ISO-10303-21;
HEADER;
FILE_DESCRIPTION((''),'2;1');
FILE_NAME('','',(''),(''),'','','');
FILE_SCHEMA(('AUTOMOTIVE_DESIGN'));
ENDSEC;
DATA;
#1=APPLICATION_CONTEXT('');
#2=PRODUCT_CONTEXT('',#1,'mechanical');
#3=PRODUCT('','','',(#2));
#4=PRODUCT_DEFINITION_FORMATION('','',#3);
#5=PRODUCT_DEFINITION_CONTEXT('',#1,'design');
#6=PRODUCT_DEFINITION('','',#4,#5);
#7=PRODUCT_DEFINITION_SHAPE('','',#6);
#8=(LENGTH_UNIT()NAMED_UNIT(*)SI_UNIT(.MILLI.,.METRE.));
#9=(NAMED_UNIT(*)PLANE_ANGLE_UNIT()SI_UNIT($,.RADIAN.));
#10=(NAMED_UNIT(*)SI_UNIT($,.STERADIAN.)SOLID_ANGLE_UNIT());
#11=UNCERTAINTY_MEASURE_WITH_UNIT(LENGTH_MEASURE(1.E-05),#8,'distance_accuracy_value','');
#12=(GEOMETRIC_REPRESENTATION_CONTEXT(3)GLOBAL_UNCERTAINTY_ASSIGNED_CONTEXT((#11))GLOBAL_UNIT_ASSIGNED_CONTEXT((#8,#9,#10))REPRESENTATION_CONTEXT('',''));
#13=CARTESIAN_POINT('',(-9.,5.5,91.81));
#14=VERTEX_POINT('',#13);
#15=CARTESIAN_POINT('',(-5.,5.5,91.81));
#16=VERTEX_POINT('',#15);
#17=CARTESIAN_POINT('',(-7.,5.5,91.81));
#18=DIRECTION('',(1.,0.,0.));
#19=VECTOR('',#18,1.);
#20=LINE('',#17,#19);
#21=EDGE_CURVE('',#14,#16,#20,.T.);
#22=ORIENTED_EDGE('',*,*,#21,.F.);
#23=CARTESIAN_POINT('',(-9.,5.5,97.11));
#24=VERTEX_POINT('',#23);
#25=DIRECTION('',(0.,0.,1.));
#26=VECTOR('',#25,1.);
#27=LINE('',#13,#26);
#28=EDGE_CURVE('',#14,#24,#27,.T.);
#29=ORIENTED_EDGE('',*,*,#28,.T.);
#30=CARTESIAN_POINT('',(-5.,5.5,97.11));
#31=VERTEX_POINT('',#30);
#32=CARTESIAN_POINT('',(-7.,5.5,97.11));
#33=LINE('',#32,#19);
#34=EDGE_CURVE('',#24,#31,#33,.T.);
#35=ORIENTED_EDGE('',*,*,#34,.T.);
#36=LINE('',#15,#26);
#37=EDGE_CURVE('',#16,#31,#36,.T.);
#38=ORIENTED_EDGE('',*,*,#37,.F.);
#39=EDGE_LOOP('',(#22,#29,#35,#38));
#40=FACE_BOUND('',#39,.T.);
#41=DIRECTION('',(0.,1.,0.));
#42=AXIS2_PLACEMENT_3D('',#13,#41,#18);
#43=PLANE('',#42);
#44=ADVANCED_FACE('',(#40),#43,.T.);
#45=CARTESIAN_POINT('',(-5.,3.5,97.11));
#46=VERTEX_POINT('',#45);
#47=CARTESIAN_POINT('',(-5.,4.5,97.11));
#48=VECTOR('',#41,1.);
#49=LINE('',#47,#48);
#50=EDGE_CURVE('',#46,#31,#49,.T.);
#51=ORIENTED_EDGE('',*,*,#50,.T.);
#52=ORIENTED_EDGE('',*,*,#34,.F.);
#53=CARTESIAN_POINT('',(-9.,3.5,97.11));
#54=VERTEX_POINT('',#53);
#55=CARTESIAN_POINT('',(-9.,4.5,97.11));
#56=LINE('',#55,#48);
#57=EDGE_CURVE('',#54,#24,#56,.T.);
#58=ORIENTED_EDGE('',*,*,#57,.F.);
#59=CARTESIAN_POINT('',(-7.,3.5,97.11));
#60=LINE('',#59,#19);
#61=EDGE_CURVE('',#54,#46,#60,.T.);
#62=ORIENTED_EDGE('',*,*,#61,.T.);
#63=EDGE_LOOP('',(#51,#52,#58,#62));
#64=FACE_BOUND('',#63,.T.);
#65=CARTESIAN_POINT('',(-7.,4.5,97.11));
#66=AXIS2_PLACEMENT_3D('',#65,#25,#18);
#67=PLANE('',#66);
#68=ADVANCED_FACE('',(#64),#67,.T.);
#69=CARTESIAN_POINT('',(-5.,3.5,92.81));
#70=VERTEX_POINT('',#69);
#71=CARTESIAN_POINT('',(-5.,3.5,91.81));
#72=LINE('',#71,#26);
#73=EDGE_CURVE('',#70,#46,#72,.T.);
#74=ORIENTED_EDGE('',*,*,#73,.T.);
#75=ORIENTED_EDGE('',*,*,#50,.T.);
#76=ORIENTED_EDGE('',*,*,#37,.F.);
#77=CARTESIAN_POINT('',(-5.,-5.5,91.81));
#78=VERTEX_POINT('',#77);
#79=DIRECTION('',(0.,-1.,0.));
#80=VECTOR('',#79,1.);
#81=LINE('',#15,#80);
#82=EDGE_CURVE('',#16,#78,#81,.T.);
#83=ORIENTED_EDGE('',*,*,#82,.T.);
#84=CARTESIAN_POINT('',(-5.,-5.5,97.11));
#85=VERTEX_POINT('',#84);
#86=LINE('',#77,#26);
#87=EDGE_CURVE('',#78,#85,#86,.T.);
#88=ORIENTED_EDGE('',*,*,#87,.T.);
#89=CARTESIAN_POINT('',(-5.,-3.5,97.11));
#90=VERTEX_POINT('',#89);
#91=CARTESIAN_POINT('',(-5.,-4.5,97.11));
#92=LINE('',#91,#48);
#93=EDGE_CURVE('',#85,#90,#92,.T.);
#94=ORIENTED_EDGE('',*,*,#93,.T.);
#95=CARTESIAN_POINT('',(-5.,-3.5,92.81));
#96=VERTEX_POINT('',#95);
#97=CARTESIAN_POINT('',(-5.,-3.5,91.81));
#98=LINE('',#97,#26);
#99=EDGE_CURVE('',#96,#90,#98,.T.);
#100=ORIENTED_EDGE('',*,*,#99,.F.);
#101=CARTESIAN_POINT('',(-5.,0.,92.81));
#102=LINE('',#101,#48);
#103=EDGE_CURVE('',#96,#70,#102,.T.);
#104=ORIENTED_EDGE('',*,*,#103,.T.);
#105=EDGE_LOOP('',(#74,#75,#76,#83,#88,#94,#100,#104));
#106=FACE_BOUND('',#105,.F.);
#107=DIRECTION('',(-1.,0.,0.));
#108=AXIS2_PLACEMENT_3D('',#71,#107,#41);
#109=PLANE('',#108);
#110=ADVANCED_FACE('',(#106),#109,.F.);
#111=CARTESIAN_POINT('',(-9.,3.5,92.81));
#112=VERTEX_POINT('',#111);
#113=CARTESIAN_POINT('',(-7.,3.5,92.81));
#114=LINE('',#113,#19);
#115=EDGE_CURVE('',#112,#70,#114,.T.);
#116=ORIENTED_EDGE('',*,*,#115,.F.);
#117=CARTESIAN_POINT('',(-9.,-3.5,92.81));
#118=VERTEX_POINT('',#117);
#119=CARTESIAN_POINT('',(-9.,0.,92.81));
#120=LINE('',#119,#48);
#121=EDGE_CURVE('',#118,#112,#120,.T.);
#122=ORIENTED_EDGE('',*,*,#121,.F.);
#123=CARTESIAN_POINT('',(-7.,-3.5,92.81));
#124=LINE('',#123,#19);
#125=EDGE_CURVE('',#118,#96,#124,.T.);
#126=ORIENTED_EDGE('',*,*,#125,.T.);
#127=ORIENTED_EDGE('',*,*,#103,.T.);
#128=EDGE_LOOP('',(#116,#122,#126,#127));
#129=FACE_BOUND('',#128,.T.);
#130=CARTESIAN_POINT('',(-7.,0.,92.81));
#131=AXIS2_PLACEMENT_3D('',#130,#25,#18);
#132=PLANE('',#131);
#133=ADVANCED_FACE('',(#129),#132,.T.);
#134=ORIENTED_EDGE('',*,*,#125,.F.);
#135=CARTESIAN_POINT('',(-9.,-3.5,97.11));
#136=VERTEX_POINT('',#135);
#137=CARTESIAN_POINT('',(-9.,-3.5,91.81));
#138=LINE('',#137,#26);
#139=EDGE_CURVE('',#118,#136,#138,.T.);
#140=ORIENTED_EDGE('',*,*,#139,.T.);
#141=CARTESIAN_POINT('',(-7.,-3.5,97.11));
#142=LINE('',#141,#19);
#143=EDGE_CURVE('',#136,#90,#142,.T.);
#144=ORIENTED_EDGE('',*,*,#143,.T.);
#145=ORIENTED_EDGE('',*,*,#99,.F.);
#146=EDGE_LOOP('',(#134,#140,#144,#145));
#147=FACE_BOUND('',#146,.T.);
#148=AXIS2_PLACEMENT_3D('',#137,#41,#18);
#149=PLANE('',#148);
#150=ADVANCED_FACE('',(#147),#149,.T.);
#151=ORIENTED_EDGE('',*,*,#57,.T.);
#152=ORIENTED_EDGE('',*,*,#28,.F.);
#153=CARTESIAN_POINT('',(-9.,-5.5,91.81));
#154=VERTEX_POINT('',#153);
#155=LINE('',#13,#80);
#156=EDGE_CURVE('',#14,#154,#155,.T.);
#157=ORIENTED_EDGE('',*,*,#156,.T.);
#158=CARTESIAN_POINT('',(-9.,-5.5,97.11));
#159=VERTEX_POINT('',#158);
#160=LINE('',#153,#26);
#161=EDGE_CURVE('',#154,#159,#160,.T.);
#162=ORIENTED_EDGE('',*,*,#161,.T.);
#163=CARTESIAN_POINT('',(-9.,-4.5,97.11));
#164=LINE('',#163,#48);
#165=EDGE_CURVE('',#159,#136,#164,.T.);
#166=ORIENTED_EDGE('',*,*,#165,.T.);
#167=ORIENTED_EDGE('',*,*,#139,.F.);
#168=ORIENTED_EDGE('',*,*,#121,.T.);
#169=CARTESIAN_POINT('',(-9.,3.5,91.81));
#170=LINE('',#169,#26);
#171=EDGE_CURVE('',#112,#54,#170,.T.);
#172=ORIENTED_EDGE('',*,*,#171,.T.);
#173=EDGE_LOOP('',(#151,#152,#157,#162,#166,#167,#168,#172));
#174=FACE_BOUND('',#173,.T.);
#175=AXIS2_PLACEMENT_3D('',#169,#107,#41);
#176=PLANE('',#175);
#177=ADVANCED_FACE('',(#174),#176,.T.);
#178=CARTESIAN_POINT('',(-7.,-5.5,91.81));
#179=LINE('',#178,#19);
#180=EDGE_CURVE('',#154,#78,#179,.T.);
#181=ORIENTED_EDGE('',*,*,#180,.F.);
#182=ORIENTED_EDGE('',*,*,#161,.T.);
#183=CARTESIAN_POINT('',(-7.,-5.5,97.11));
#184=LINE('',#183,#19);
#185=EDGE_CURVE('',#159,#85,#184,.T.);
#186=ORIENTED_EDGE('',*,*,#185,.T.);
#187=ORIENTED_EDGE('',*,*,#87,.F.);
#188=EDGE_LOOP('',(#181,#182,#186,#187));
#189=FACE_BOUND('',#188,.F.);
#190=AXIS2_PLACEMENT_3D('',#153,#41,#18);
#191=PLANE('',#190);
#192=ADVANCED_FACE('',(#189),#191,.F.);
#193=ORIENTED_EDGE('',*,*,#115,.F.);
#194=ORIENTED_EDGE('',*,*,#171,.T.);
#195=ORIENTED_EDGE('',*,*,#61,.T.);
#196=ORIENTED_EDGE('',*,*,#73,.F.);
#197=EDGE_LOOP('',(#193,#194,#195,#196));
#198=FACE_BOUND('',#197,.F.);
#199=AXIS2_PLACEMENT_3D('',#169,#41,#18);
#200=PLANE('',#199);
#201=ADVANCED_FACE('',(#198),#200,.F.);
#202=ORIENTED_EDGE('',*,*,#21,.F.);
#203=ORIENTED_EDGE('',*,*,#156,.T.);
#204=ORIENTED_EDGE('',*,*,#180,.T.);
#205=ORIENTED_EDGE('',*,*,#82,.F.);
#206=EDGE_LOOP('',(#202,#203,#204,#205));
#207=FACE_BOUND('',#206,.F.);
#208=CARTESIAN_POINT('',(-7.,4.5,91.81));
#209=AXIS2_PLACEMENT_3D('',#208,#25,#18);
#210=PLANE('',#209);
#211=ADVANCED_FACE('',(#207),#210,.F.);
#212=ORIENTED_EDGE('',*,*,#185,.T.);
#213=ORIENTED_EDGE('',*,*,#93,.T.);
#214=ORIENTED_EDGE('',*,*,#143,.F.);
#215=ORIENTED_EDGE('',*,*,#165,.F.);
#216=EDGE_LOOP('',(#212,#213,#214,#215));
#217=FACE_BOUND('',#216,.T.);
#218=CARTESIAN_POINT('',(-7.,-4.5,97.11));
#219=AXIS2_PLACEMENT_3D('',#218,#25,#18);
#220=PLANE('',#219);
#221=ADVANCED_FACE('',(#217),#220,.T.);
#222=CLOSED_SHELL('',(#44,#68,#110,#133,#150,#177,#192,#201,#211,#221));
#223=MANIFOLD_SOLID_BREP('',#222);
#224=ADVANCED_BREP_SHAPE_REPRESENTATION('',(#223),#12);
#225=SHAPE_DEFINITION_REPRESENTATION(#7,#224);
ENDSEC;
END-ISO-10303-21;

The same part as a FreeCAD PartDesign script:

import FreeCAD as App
import Part
import Sketcher
from FreeCAD import Vector
Q = App.Units.Quantity


def add_polygon(sketch, points):
    """Adds a closed chain of lines whose ends are joined by coincident constraints."""
    first, n = sketch.GeometryCount, len(points)
    for a, b in zip(points, points[1:] + points[:1]):
        sketch.addGeometry(Part.LineSegment(App.Vector(*a, 0), App.Vector(*b, 0)), False)
    for i in range(n):
        sketch.addConstraint(Sketcher.Constraint("Coincident", first + i, 2, first + (i + 1) % n, 1))

doc = App.newDocument("Part")
body = doc.addObject("PartDesign::Body", "Body")

sketch1 = body.newObject("Sketcher::SketchObject", "Sketch")
sketch1.AttachmentSupport = (doc.getObject("XY_Plane"), [""])
sketch1.MapMode = "FlatFace"
add_polygon(sketch1, [(0, 8), (0, 1), (4, 1), (4, 8)])
sketch1.addConstraint([
    Sketcher.Constraint("Vertical", 0),
    Sketcher.Constraint("Horizontal", 1),
    Sketcher.Constraint("Vertical", 2),
    Sketcher.Constraint("Horizontal", 3),
    Sketcher.Constraint("PointOnObject", 0, 2, -2),
    Sketcher.Constraint("DistanceX", 1, 1, 1, 2, Q("4 mm")),
    Sketcher.Constraint("DistanceY", 0, 2, 0, 1, Q("7 mm")),
    Sketcher.Constraint("DistanceY", -1, 1, 0, 2, Q("1 mm")),
])
pad1 = body.newObject("PartDesign::Pad", "Pad")
pad1.Profile = sketch1
pad1.Length = 1
body2 = doc.addObject("PartDesign::Body", "Body001")

sketch2 = body2.newObject("Sketcher::SketchObject", "Sketch001")
sketch2.AttachmentSupport = (doc.getObject("XY_Plane001"), [""])
sketch2.MapMode = "FlatFace"
add_polygon(sketch2, [(0, 10), (0, 8), (4, 8), (4, 10)])
sketch2.addConstraint([
    Sketcher.Constraint("Vertical", 0),
    Sketcher.Constraint("Horizontal", 1),
    Sketcher.Constraint("Vertical", 2),
    Sketcher.Constraint("Horizontal", 3),
    Sketcher.Constraint("PointOnObject", 0, 2, -2),
    Sketcher.Constraint("DistanceX", 1, 1, 1, 2, Q("4 mm")),
    Sketcher.Constraint("DistanceY", 0, 2, 0, 1, Q("2 mm")),
    Sketcher.Constraint("DistanceY", -1, 1, 0, 2, Q("8 mm")),
])
pad2 = body2.newObject("PartDesign::Pad", "Pad001")
pad2.Profile = sketch2
pad2.Length = 5.3
body3 = doc.addObject("PartDesign::Body", "Body002")

sketch3 = body3.newObject("Sketcher::SketchObject", "Sketch002")
sketch3.AttachmentSupport = (doc.getObject("XY_Plane002"), [""])
sketch3.MapMode = "FlatFace"
add_polygon(sketch3, [(0, 1), (0, -1), (4, -1), (4, 1)])
sketch3.addConstraint([
    Sketcher.Constraint("Vertical", 0),
    Sketcher.Constraint("Horizontal", 1),
    Sketcher.Constraint("Vertical", 2),
    Sketcher.Constraint("Horizontal", 3),
    Sketcher.Constraint("Symmetric", 0, 2, 3, 2, -1, 1),
    Sketcher.Constraint("DistanceX", 1, 1, 1, 2, Q("4 mm")),
    Sketcher.Constraint("DistanceY", 0, 2, 0, 1, Q("2 mm")),
])
pad3 = body3.newObject("PartDesign::Pad", "Pad002")
pad3.Profile = sketch3
pad3.Length = 5.3
doc.recompute()

boolean = body3.newObject("PartDesign::Boolean", "Boolean")
boolean.Type = "Fuse"
boolean.addObjects([body])
doc.recompute()

boolean2 = body3.newObject("PartDesign::Boolean", "Boolean001")
boolean2.Type = "Fuse"
boolean2.addObjects([body2])
body4 = doc.addObject("PartDesign::Body", "Body003")
doc.recompute()

body3.Placement = App.Placement(Vector(-9, -4.5, 91.81), App.Rotation(Vector(0, 0, 1), 0))
boolean3 = body4.newObject("PartDesign::Boolean", "Boolean002")
boolean3.Type = "Fuse"
boolean3.addObjects([body3])

doc.recompute()
